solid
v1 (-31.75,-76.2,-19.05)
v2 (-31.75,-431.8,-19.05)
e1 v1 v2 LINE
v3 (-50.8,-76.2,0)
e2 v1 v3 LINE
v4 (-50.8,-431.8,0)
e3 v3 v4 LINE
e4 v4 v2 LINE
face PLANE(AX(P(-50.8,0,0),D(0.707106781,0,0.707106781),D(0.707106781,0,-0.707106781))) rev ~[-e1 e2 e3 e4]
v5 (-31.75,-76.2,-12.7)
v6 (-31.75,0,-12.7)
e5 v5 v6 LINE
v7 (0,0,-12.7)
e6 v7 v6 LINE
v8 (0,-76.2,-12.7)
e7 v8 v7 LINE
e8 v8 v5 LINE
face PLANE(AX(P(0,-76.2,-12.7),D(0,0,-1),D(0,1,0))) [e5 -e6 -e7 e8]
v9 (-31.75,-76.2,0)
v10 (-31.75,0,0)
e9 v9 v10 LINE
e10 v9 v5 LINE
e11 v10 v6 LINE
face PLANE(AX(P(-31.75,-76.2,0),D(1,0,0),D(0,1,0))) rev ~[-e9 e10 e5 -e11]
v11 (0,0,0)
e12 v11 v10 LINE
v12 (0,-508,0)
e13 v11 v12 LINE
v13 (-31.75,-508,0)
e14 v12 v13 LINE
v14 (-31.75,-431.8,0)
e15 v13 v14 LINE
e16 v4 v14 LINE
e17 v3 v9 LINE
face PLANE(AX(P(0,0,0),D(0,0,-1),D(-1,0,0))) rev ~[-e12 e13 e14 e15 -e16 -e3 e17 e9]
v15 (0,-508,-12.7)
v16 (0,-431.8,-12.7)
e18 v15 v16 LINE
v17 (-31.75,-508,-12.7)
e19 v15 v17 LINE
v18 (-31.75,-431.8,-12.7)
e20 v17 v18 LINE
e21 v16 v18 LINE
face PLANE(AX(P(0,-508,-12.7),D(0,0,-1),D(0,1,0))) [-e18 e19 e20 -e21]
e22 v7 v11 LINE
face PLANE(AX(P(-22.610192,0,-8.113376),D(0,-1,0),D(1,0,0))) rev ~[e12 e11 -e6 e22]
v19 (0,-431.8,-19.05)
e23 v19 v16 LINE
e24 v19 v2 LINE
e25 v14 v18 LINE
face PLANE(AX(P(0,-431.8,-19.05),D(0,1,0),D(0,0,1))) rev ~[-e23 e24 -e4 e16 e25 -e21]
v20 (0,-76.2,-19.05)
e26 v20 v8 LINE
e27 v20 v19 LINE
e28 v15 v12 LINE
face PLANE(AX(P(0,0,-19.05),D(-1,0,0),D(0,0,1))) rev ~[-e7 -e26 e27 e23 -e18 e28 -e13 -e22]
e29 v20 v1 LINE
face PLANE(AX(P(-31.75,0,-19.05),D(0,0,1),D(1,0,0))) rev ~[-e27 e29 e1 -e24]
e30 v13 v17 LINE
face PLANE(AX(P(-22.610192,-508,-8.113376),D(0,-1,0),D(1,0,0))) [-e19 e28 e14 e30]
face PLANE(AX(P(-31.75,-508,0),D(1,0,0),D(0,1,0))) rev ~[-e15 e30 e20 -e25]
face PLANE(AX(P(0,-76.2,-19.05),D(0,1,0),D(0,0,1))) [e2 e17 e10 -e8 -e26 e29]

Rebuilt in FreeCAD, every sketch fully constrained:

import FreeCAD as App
import Part
import Sketcher
Q = App.Units.Quantity

doc = App.newDocument("Part")
body = doc.addObject("PartDesign::Body", "Body")

sketch1 = body.newObject("Sketcher::SketchObject", "Sketch")
sketch1.AttachmentSupport = (doc.getObject("XZ_Plane"), [""])
sketch1.MapMode = "FlatFace"
sketch1.addGeometry(Part.LineSegment(App.Vector(0, -19, 0), App.Vector(0, 0, 0)), False)
sketch1.addGeometry(Part.LineSegment(App.Vector(0, 0, 0), App.Vector(-51, 0, 0)), False)
sketch1.addGeometry(Part.LineSegment(App.Vector(-51, 0, 0), App.Vector(-32, -19, 0)), False)
sketch1.addGeometry(Part.LineSegment(App.Vector(-32, -19, 0), App.Vector(0, -19, 0)), False)
sketch1.addConstraint(Sketcher.Constraint("Coincident", 0, 2, 1, 1))
sketch1.addConstraint(Sketcher.Constraint("Coincident", 1, 2, 2, 1))
sketch1.addConstraint(Sketcher.Constraint("Coincident", 2, 2, 3, 1))
sketch1.addConstraint(Sketcher.Constraint("Coincident", 3, 2, 0, 1))
sketch1.addConstraint(Sketcher.Constraint("Vertical", 0))
sketch1.addConstraint(Sketcher.Constraint("Horizontal", 1))
sketch1.addConstraint(Sketcher.Constraint("Horizontal", 3))
sketch1.addConstraint(Sketcher.Constraint("Coincident", 0, 2, -1, 1))
sketch1.addConstraint(Sketcher.Constraint("DistanceX", 1, 2, 1, 1, Q("2 in")))
sketch1.addConstraint(Sketcher.Constraint("Angle", 2, Q("-45 deg")))
sketch1.addConstraint(Sketcher.Constraint("DistanceX", 3, 1, 3, 2, Q("1.25 in")))
pad1 = body.newObject("PartDesign::Pad", "Pad")
pad1.Profile = sketch1
pad1.Length = Q("20 in")

sketch2 = body.newObject("Sketcher::SketchObject", "Sketch001")
sketch2.AttachmentSupport = (doc.getObject("XY_Plane"), [""])
sketch2.MapMode = "FlatFace"
sketch2.addGeometry(Part.LineSegment(App.Vector(-51, 0, 0), App.Vector(-51, -76, 0)), False)
sketch2.addGeometry(Part.LineSegment(App.Vector(-51, -76, 0), App.Vector(-32, -76, 0)), False)
sketch2.addGeometry(Part.LineSegment(App.Vector(-32, -76, 0), App.Vector(-32, 0, 0)), False)
sketch2.addGeometry(Part.LineSegment(App.Vector(-32, 0, 0), App.Vector(-51, 0, 0)), False)
sketch2.addGeometry(Part.LineSegment(App.Vector(-51, -432, 0), App.Vector(-51, -508, 0)), False)
sketch2.addGeometry(Part.LineSegment(App.Vector(-51, -508, 0), App.Vector(-32, -508, 0)), False)
sketch2.addGeometry(Part.LineSegment(App.Vector(-32, -508, 0), App.Vector(-32, -432, 0)), False)
sketch2.addGeometry(Part.LineSegment(App.Vector(-32, -432, 0), App.Vector(-51, -432, 0)), False)
sketch2.addConstraint(Sketcher.Constraint("Coincident", 0, 2, 1, 1))
sketch2.addConstraint(Sketcher.Constraint("Coincident", 1, 2, 2, 1))
sketch2.addConstraint(Sketcher.Constraint("Coincident", 2, 2, 3, 1))
sketch2.addConstraint(Sketcher.Constraint("Coincident", 3, 2, 0, 1))
sketch2.addConstraint(Sketcher.Constraint("Coincident", 4, 2, 5, 1))
sketch2.addConstraint(Sketcher.Constraint("Coincident", 5, 2, 6, 1))
sketch2.addConstraint(Sketcher.Constraint("Coincident", 6, 2, 7, 1))
sketch2.addConstraint(Sketcher.Constraint("Coincident", 7, 2, 4, 1))
sketch2.addConstraint(Sketcher.Constraint("Vertical", 0))
sketch2.addConstraint(Sketcher.Constraint("Horizontal", 1))
sketch2.addConstraint(Sketcher.Constraint("Vertical", 2))
sketch2.addConstraint(Sketcher.Constraint("Horizontal", 3))
sketch2.addConstraint(Sketcher.Constraint("Vertical", 4))
sketch2.addConstraint(Sketcher.Constraint("Horizontal", 5))
sketch2.addConstraint(Sketcher.Constraint("Vertical", 6))
sketch2.addConstraint(Sketcher.Constraint("Horizontal", 7))
sketch2.addConstraint(Sketcher.Constraint("PointOnObject", 2, 2, -1))
sketch2.addConstraint(Sketcher.Constraint("Vertical", 3, 2, 4, 2))
sketch2.addConstraint(Sketcher.Constraint("Vertical", 2, 2, 5, 2))
sketch2.addConstraint(Sketcher.Constraint("Equal", 2, 4))
sketch2.addConstraint(Sketcher.Constraint("DistanceY", 0, 2, 0, 1, Q("3 in")))
sketch2.addConstraint(Sketcher.Constraint("DistanceX", 0, 2, -1, 1, Q("2 in")))
sketch2.addConstraint(Sketcher.Constraint("DistanceY", 4, 2, -1, 1, Q("20 in")))
sketch2.addConstraint(Sketcher.Constraint("DistanceX", 1, 1, 1, 2, Q("0.75 in")))
pocket1 = body.newObject("PartDesign::Pocket", "Pocket")
pocket1.Profile = sketch2
pocket1.Length = Q("1 in")

sketch3 = body.newObject("Sketcher::SketchObject", "Sketch002")
sketch3.AttachmentSupport = (doc.getObject("YZ_Plane"), [""])
sketch3.MapMode = "FlatFace"
sketch3.addGeometry(Part.LineSegment(App.Vector(-508, -13, 0), App.Vector(-508, -19, 0)), False)
sketch3.addGeometry(Part.LineSegment(App.Vector(-508, -19, 0), App.Vector(-432, -19, 0)), False)
sketch3.addGeometry(Part.LineSegment(App.Vector(-432, -19, 0), App.Vector(-432, -13, 0)), False)
sketch3.addGeometry(Part.LineSegment(App.Vector(-432, -13, 0), App.Vector(-508, -13, 0)), False)
sketch3.addGeometry(Part.LineSegment(App.Vector(-76, -13, 0), App.Vector(-76, -19, 0)), False)
sketch3.addGeometry(Part.LineSegment(App.Vector(-76, -19, 0), App.Vector(0, -19, 0)), False)
sketch3.addGeometry(Part.LineSegment(App.Vector(0, -19, 0), App.Vector(0, -13, 0)), False)
sketch3.addGeometry(Part.LineSegment(App.Vector(0, -13, 0), App.Vector(-76, -13, 0)), False)
sketch3.addConstraint(Sketcher.Constraint("Coincident", 0, 2, 1, 1))
sketch3.addConstraint(Sketcher.Constraint("Coincident", 1, 2, 2, 1))
sketch3.addConstraint(Sketcher.Constraint("Coincident", 2, 2, 3, 1))
sketch3.addConstraint(Sketcher.Constraint("Coincident", 3, 2, 0, 1))
sketch3.addConstraint(Sketcher.Constraint("Coincident", 4, 2, 5, 1))
sketch3.addConstraint(Sketcher.Constraint("Coincident", 5, 2, 6, 1))
sketch3.addConstraint(Sketcher.Constraint("Coincident", 6, 2, 7, 1))
sketch3.addConstraint(Sketcher.Constraint("Coincident", 7, 2, 4, 1))
sketch3.addConstraint(Sketcher.Constraint("Vertical", 0))
sketch3.addConstraint(Sketcher.Constraint("Horizontal", 1))
sketch3.addConstraint(Sketcher.Constraint("Vertical", 2))
sketch3.addConstraint(Sketcher.Constraint("Horizontal", 3))
sketch3.addConstraint(Sketcher.Constraint("Vertical", 4))
sketch3.addConstraint(Sketcher.Constraint("Horizontal", 5))
sketch3.addConstraint(Sketcher.Constraint("Vertical", 6))
sketch3.addConstraint(Sketcher.Constraint("Horizontal", 7))
sketch3.addConstraint(Sketcher.Constraint("PointOnObject", 5, 2, -2))
sketch3.addConstraint(Sketcher.Constraint("Horizontal", 1, 2, 4, 2))
sketch3.addConstraint(Sketcher.Constraint("Horizontal", 3, 2, 6, 2))
sketch3.addConstraint(Sketcher.Constraint("Equal", 3, 5))
sketch3.addConstraint(Sketcher.Constraint("DistanceX", 1, 1, 1, 2, Q("3 in")))
sketch3.addConstraint(Sketcher.Constraint("DistanceX", 0, 2, -1, 1, Q("20 in")))
sketch3.addConstraint(Sketcher.Constraint("DistanceY", 0, 2, 0, 1, Q("0.25 in")))
sketch3.addConstraint(Sketcher.Constraint("DistanceY", 2, 2, -1, 1, Q("0.5 in")))
pocket2 = body.newObject("PartDesign::Pocket", "Pocket001")
pocket2.Profile = sketch3
pocket2.Type = "ThroughAll"

doc.recompute()
